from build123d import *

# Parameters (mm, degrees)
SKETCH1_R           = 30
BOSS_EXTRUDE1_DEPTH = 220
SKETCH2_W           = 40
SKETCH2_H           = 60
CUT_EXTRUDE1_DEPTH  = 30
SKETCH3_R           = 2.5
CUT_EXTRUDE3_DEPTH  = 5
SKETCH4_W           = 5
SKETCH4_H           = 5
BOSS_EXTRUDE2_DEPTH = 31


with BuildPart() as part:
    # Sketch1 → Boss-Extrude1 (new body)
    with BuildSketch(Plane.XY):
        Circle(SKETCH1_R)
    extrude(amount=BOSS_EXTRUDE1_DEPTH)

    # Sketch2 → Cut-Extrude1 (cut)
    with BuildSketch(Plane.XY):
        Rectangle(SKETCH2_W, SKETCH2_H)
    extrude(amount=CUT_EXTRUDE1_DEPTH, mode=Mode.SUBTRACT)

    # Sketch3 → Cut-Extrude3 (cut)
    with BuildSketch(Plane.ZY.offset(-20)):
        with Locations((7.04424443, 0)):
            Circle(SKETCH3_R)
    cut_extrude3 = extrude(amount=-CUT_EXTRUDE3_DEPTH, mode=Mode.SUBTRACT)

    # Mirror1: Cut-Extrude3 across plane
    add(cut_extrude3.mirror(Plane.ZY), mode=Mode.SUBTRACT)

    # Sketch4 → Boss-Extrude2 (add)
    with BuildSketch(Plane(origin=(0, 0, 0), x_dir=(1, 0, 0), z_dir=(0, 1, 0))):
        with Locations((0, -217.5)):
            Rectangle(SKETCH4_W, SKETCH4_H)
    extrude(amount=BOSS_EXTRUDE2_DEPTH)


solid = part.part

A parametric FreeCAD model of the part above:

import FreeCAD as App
import Part
import Sketcher
from FreeCAD import Vector

doc = App.newDocument("Part")
params = doc.addObject("Spreadsheet::Sheet", "Params")
for row, (alias, value) in enumerate([
    ("sketch1_diameter", "60 mm"),
    ("pad1_length", "220 mm"),
    ("sketch2_width", "40 mm"),
    ("sketch2_height", "60 mm"),
    ("pocket1_length", "30 mm"),
    ("sketch3_diameter", "5 mm"),
    ("pocket2_length", "5 mm"),
    ("sketch4_width", "5 mm"),
    ("pad2_length", "31 mm"),
], start=1):
    params.set(f"A{row}", alias)
    params.set(f"B{row}", "=" + value)
    params.setAlias(f"B{row}", alias)

body = doc.addObject("PartDesign::Body", "Body")

# Sketch on XY plane
sketch1 = body.newObject("Sketcher::SketchObject", "Sketch")
sketch1.AttachmentSupport = (doc.getObject("XY_Plane"), [""])
sketch1.MapMode = "FlatFace"
sketch1.addGeometry(Part.Circle(Vector(0, 0, 0), Vector(0, 0, 1), 30), False)
sketch1.addConstraint(Sketcher.Constraint("Coincident", 0, 3, -1, 1))
sketch1.addConstraint(Sketcher.Constraint("Diameter", 0, 60.0))
sketch1.setExpression("Constraints[1]", "Params.sketch1_diameter")
pad1 = body.newObject("PartDesign::Pad", "Pad")
pad1.Profile = sketch1
pad1.setExpression("Length", "Params.pad1_length")

# Sketch on XY plane
sketch2 = body.newObject("Sketcher::SketchObject", "Sketch001")
sketch2.AttachmentSupport = (doc.getObject("XY_Plane"), [""])
sketch2.MapMode = "FlatFace"
sketch2.addGeometry(Part.LineSegment(Vector(-20, 30, 0), Vector(-20, -30, 0)), False)
sketch2.addGeometry(Part.LineSegment(Vector(-20, -30, 0), Vector(20, -30, 0)), False)
sketch2.addGeometry(Part.LineSegment(Vector(20, -30, 0), Vector(20, 30, 0)), False)
sketch2.addGeometry(Part.LineSegment(Vector(20, 30, 0), Vector(-20, 30, 0)), False)
sketch2.addConstraint(Sketcher.Constraint("Coincident", 0, 2, 1, 1))
sketch2.addConstraint(Sketcher.Constraint("Coincident", 1, 2, 2, 1))
sketch2.addConstraint(Sketcher.Constraint("Coincident", 2, 2, 3, 1))
sketch2.addConstraint(Sketcher.Constraint("Coincident", 3, 2, 0, 1))
sketch2.addConstraint(Sketcher.Constraint("Vertical", 0))
sketch2.addConstraint(Sketcher.Constraint("Horizontal", 1))
sketch2.addConstraint(Sketcher.Constraint("Vertical", 2))
sketch2.addConstraint(Sketcher.Constraint("Horizontal", 3))
sketch2.addConstraint(Sketcher.Constraint("Symmetric", 0, 2, 2, 2, -1, 1))
sketch2.addConstraint(Sketcher.Constraint("DistanceX", 1, 1, 1, 2, 40.0))
sketch2.addConstraint(Sketcher.Constraint("DistanceY", 0, 2, 0, 1, 60.0))
sketch2.setExpression("Constraints[9]", "Params.sketch2_width")
sketch2.setExpression("Constraints[10]", "Params.sketch2_height")
pocket1 = body.newObject("PartDesign::Pocket", "Pocket")
pocket1.Profile = sketch2
pocket1.setExpression("Length", "Params.pocket1_length")
pocket1.Reversed = True

# Sketch on YZ plane
sketch3 = body.newObject("Sketcher::SketchObject", "Sketch002")
sketch3.AttachmentSupport = (doc.getObject("YZ_Plane"), [""])
sketch3.MapMode = "FlatFace"
sketch3.AttachmentOffset = App.Placement(Vector(0, 0, 20), App.Rotation())
sketch3.addGeometry(Part.Circle(Vector(0, 7, 0), Vector(0, 0, 1), 2.5), False)
sketch3.addConstraint(Sketcher.Constraint("PointOnObject", 0, 3, -2))
sketch3.addConstraint(Sketcher.Constraint("Diameter", 0, 5.0))
sketch3.addConstraint(Sketcher.Constraint("DistanceY", -1, 1, 0, 3, 7.044244))
sketch3.setExpression("Constraints[1]", "Params.sketch3_diameter")
pocket2 = body.newObject("PartDesign::Pocket", "Pocket001")
pocket2.Profile = sketch3
pocket2.setExpression("Length", "Params.pocket2_length")
pocket2.Reversed = True
doc.recompute()

mirrored = body.newObject("PartDesign::Mirrored", "Mirrored")
mirrored.Originals = [pocket2]
mirrored.MirrorPlane = (doc.getObject("YZ_Plane"), [""])
body.Tip = mirrored

# Sketch on XZ plane
sketch4 = body.newObject("Sketcher::SketchObject", "Sketch003")
sketch4.AttachmentSupport = (doc.getObject("XZ_Plane"), [""])
sketch4.MapMode = "FlatFace"
sketch4.addGeometry(Part.LineSegment(Vector(-2, 215, 0), Vector(-2, 220, 0)), False)
sketch4.addGeometry(Part.LineSegment(Vector(-2, 220, 0), Vector(2, 220, 0)), False)
sketch4.addGeometry(Part.LineSegment(Vector(2, 220, 0), Vector(2, 215, 0)), False)
sketch4.addGeometry(Part.LineSegment(Vector(2, 215, 0), Vector(-2, 215, 0)), False)
sketch4.addConstraint(Sketcher.Constraint("Coincident", 0, 2, 1, 1))
sketch4.addConstraint(Sketcher.Constraint("Coincident", 1, 2, 2, 1))
sketch4.addConstraint(Sketcher.Constraint("Coincident", 2, 2, 3, 1))
sketch4.addConstraint(Sketcher.Constraint("Coincident", 3, 2, 0, 1))
sketch4.addConstraint(Sketcher.Constraint("Vertical", 0))
sketch4.addConstraint(Sketcher.Constraint("Horizontal", 1))
sketch4.addConstraint(Sketcher.Constraint("Vertical", 2))
sketch4.addConstraint(Sketcher.Constraint("Horizontal", 3))
sketch4.addConstraint(Sketcher.Constraint("Equal", 3, 0))
sketch4.addConstraint(Sketcher.Constraint("DistanceX", 1, 1, 1, 2, 5.0))
sketch4.addConstraint(Sketcher.Constraint("DistanceY", -1, 1, 0, 2, 220.0))
sketch4.addConstraint(Sketcher.Constraint("DistanceX", 0, 2, -1, 1, 2.5))
sketch4.setExpression("Constraints[9]", "Params.sketch4_width")
pad2 = body.newObject("PartDesign::Pad", "Pad001")
pad2.Profile = sketch4
pad2.setExpression("Length", "Params.pad2_length")
pad2.Reversed = True

doc.recompute()
